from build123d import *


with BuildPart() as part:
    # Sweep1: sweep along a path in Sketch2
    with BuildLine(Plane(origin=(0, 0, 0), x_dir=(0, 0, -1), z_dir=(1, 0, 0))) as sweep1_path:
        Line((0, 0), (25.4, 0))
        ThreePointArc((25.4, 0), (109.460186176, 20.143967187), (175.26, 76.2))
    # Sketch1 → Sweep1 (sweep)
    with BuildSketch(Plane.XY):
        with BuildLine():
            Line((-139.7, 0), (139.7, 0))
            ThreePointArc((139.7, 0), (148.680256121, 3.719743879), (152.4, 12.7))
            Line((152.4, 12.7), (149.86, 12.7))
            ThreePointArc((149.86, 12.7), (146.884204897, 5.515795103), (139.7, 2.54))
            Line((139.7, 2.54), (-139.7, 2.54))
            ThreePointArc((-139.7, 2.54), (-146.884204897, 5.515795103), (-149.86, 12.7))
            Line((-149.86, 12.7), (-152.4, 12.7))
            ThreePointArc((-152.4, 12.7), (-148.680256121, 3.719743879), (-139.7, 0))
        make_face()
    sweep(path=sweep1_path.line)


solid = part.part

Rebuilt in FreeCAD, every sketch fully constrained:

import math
import FreeCAD as App
import Part
import Sketcher

V = App.Vector
Q = App.Units.Quantity

doc = App.newDocument("Part")
params = doc.addObject("Spreadsheet::Sheet", "Params")
for row, (alias, value) in enumerate([
    ("sketch1_radius", "0.5 in"),
    ("sketch1_radius2", "0.4 in"),
    ("sketch1_width", "11 in"),
    ("sketch2_height", "1 in"),
], start=1):
    params.set(f"A{row}", alias)
    params.set(f"B{row}", "=" + value)
    params.setAlias(f"B{row}", alias)

body = doc.addObject("PartDesign::Body", "Body")

# Sketch on XY plane
sketch1 = body.newObject("Sketcher::SketchObject", "Sketch")
sketch1.AttachmentSupport = (doc.getObject("XY_Plane"), [""])
sketch1.MapMode = "FlatFace"
sketch1.addGeometry([
    Part.LineSegment(V(-139.7, 0, 0), V(139.7, 0, 0)),  # 0
    Part.ArcOfCircle(Part.Circle(V(139.7, 12.7, 0), V(0, 0, 1), 12.7), math.radians(-90), math.radians(0)),  # 1
    Part.LineSegment(V(152.4, 12.7, 0), V(149.86, 12.7, 0)),  # 2
    Part.ArcOfCircle(Part.Circle(V(139.7, 12.7, 0), V(0, 0, 1), 10.16), math.radians(-90), math.radians(0)),  # 3
    Part.LineSegment(V(139.7, 2.54, 0), V(-139.7, 2.54, 0)),  # 4
    Part.ArcOfCircle(Part.Circle(V(-139.7, 12.7, 0), V(0, 0, 1), 10.16), math.radians(180), math.radians(270)),  # 5
    Part.LineSegment(V(-149.86, 12.7, 0), V(-152.4, 12.7, 0)),  # 6
    Part.ArcOfCircle(Part.Circle(V(-139.7, 12.7, 0), V(0, 0, 1), 12.7), math.radians(180), math.radians(270)),  # 7
], False)
sketch1.addConstraint([
    Sketcher.Constraint("Tangent", 0, 2, 1, 1),
    Sketcher.Constraint("Coincident", 1, 2, 2, 1),
    Sketcher.Constraint("Coincident", 2, 2, 3, 2),
    Sketcher.Constraint("Tangent", 3, 1, 4, 1),
    Sketcher.Constraint("Tangent", 4, 2, 5, 2),
    Sketcher.Constraint("Coincident", 5, 1, 6, 1),
    Sketcher.Constraint("Coincident", 6, 2, 7, 1),
    Sketcher.Constraint("Tangent", 7, 2, 0, 1),
    Sketcher.Constraint("Horizontal", 0),
    Sketcher.Constraint("Horizontal", 2),
    Sketcher.Constraint("Horizontal", 4),
    Sketcher.Constraint("Horizontal", 6),
    Sketcher.Constraint("Coincident", 3, 3, 1, 3),
    Sketcher.Constraint("Coincident", 7, 3, 5, 3),
    Sketcher.Constraint("Equal", 3, 5),
    Sketcher.Constraint("Symmetric", 0, 2, 7, 2, -1, 1),
    Sketcher.Constraint("Horizontal", 7, 3, 1, 2),
    Sketcher.Constraint("Horizontal", 2, 2, 5, 1),
    Sketcher.Constraint("Radius", 1, Q("0.5 in")),
    Sketcher.Constraint("Radius", 3, Q("0.4 in")),
    Sketcher.Constraint("DistanceX", 0, 1, 0, 2, Q("11 in")),
])
sketch1.setExpression("Constraints[18]", "Params.sketch1_radius")
sketch1.setExpression("Constraints[19]", "Params.sketch1_radius2")
sketch1.setExpression("Constraints[20]", "Params.sketch1_width")

# Sketch on YZ plane
sketch2 = body.newObject("Sketcher::SketchObject", "Sketch001")
sketch2.AttachmentSupport = (doc.getObject("YZ_Plane"), [""])
sketch2.MapMode = "FlatFace"
sketch2.addGeometry([
    Part.LineSegment(V(0, 0, 0), V(0, -25.4, 0)),
    Part.ArcOfCircle(Part.Circle(V(185.462333, -25.4, 0), V(0, 0, 1), 185.462333), math.radians(-180), math.radians(-126.095642)),
], False)
sketch2.addConstraint([
    Sketcher.Constraint("Tangent", 0, 2, 1, 1),
    Sketcher.Constraint("Vertical", 0),
    Sketcher.Constraint("Coincident", 0, 1, -1, 1),
    Sketcher.Constraint("DistanceY", 0, 2, 0, 1, Q("1 in")),
    Sketcher.Constraint("DistanceX", -1, 1, 1, 2, Q("3 in")),
    Sketcher.Constraint("DistanceY", 1, 2, -1, 1, Q("6.9 in")),
])
sketch2.setExpression("Constraints[3]", "Params.sketch2_height")
doc.recompute()

additivepipe = body.newObject("PartDesign::AdditivePipe", "AdditivePipe")
additivepipe.Profile = sketch1
additivepipe.Spine = (sketch2, ["Edge1", "Edge2"])

doc.recompute()
